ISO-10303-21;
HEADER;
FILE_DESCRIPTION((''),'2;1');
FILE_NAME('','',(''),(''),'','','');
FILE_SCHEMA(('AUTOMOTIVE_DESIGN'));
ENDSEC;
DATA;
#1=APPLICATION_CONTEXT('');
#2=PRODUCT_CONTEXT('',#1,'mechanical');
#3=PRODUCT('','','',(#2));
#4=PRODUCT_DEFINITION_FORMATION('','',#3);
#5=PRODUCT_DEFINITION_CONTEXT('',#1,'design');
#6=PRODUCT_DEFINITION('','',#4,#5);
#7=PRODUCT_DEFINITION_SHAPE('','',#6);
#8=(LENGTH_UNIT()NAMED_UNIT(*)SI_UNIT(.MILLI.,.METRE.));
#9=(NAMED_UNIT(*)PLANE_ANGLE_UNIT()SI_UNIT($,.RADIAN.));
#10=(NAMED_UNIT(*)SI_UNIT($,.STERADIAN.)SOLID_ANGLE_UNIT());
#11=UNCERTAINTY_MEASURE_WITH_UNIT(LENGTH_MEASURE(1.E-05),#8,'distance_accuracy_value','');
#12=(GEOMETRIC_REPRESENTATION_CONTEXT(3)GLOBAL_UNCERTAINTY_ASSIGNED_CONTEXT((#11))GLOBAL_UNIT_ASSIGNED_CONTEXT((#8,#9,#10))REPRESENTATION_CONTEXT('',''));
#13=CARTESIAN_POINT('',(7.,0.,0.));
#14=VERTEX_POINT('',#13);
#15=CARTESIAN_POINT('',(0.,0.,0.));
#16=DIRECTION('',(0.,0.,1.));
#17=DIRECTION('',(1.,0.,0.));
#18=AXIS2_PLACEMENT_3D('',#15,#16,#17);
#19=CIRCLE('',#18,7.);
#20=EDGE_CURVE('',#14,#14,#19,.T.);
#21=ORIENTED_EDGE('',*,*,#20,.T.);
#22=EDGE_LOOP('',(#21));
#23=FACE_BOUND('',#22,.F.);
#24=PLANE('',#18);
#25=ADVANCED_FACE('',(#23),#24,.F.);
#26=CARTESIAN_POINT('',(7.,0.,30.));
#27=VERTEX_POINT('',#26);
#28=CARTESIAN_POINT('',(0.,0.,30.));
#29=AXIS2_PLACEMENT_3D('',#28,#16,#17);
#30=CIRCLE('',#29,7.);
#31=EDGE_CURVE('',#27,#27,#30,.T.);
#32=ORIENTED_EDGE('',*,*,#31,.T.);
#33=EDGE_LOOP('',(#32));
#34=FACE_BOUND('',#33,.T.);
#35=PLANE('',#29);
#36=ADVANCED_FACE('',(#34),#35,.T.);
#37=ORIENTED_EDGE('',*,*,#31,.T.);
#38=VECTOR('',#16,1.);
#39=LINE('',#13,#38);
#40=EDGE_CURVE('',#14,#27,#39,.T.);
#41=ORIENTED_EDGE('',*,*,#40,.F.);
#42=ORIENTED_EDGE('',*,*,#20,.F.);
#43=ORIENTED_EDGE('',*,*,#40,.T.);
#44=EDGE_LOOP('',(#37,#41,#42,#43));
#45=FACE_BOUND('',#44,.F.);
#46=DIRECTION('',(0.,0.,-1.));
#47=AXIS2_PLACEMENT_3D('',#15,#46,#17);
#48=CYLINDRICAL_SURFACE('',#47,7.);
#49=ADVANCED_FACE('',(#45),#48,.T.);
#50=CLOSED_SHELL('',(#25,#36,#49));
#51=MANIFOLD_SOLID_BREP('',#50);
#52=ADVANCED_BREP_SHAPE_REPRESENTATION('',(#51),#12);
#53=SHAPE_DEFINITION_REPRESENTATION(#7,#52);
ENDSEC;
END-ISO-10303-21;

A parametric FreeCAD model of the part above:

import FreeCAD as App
import Part
import Sketcher

V = App.Vector

doc = App.newDocument("Part")
body = doc.addObject("PartDesign::Body", "Body")

# Sketch on XY plane
sketch1 = doc.addObject("Sketcher::SketchObject", "Sketch")
body.addObject(sketch1)
sketch1.AttachmentSupport = (doc.XY_Plane, [""])
sketch1.MapMode = "FlatFace"
sketch1.addGeometry(Part.Circle(V(0, 0, 0), V(0, 0, 1), 7), False)
sketch1.addConstraint([
    Sketcher.Constraint("Coincident", 0, 3, -1, 1),
    Sketcher.Constraint("Diameter", 0, 14.0),
])
pad1 = doc.addObject("PartDesign::Pad", "Pad")
body.addObject(pad1)
pad1.Profile = sketch1
pad1.Length = 30

doc.recompute()
